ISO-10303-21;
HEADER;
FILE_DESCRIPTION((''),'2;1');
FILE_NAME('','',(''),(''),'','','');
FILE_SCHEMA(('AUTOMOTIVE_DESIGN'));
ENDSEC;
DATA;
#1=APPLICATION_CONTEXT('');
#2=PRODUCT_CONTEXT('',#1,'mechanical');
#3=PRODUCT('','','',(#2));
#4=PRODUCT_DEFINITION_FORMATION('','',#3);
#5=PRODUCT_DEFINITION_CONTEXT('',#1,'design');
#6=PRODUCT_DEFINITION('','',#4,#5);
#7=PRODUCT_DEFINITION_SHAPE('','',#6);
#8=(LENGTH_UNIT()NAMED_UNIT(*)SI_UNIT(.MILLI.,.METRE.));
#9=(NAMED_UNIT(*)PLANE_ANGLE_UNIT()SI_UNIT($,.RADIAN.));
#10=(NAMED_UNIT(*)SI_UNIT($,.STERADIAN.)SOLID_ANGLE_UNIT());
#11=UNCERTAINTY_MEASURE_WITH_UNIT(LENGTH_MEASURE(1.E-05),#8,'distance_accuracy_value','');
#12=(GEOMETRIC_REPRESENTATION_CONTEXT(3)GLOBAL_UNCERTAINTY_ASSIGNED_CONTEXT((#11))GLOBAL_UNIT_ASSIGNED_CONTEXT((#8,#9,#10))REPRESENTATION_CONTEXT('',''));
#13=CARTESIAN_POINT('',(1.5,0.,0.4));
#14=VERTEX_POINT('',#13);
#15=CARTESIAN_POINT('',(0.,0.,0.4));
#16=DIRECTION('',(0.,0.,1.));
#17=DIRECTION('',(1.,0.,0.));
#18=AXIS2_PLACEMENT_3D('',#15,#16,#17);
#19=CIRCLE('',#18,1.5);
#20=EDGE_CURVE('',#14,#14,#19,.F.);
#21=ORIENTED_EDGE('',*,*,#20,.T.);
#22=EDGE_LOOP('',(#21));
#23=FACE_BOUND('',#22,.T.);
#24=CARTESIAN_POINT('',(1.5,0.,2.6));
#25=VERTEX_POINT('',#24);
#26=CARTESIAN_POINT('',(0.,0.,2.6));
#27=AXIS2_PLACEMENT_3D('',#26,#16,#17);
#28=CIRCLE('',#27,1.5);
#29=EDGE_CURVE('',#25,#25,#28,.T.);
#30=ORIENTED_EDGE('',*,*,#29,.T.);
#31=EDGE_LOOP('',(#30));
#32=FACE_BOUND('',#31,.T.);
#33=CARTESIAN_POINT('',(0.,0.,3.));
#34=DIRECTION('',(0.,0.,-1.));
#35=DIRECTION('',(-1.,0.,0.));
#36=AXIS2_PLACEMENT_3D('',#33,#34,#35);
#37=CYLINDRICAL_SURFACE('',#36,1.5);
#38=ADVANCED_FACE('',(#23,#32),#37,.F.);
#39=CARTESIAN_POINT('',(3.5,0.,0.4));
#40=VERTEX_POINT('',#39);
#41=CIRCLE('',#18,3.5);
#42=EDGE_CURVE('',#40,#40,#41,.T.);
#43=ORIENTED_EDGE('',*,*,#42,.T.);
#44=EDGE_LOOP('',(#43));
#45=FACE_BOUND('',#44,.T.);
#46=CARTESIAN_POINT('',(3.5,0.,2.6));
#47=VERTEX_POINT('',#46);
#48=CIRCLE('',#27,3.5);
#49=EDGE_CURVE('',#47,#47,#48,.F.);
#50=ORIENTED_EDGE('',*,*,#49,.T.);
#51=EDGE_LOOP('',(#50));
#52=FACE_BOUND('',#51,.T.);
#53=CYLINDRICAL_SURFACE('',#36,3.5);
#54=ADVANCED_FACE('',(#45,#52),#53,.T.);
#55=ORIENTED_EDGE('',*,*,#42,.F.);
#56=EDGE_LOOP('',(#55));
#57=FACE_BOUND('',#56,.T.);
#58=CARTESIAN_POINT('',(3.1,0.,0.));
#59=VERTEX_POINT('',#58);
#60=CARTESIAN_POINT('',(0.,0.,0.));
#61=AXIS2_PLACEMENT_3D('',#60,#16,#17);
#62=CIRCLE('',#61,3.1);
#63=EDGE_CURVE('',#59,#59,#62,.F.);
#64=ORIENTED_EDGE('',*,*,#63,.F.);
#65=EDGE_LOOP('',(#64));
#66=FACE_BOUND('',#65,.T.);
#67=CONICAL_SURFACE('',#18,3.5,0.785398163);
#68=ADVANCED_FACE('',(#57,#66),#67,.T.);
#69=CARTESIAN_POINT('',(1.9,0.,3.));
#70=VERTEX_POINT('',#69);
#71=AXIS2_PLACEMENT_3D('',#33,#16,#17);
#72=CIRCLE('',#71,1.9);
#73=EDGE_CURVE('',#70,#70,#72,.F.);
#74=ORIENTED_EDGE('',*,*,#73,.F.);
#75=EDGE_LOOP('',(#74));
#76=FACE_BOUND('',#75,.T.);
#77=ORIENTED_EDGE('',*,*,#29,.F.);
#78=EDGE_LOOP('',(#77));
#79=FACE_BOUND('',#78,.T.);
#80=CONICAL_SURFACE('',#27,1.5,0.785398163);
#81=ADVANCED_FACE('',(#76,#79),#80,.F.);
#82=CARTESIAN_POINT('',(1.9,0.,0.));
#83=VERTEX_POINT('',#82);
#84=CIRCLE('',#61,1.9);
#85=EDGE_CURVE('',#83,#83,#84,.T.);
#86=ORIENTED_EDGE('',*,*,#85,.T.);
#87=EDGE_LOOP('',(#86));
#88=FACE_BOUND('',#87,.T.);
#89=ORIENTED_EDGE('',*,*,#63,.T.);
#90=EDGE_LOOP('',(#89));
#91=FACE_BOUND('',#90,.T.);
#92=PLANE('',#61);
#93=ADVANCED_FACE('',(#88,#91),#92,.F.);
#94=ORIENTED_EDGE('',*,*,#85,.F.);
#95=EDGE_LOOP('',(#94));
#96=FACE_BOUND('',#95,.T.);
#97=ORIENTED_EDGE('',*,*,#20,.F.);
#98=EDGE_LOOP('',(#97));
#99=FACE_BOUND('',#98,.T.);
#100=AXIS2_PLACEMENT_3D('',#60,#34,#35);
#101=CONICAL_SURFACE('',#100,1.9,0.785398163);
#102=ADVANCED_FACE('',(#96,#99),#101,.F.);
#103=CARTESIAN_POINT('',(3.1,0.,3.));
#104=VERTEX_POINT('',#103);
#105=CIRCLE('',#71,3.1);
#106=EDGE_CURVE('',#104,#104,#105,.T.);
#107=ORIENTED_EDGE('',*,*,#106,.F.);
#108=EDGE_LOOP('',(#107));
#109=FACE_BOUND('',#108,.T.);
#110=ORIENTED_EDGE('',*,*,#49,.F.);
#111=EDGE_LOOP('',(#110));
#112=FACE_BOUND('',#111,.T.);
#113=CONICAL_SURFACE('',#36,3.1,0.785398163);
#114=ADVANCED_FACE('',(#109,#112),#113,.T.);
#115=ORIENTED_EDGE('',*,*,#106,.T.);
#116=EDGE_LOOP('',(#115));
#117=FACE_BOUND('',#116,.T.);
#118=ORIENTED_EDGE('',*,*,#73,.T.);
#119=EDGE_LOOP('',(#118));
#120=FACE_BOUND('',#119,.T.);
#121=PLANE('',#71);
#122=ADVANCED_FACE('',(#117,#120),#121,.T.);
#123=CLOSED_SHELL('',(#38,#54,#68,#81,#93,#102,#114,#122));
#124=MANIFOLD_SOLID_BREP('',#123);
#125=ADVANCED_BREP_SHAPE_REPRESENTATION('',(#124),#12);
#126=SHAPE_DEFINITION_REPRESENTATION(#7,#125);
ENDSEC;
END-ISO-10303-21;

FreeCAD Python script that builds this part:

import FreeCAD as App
import Part
import Sketcher
from FreeCAD import Vector
Q = App.Units.Quantity


def edges_at(feature, points):
    """Names of the edges that pass closest to the given points."""
    edges = feature.Shape.Edges
    near = lambda p: min(range(len(edges)), key=lambda i: edges[i].distToShape(Part.Vertex(*p))[0])
    return sorted({f"Edge{near(p) + 1}" for p in points})

doc = App.newDocument("Part")
params = doc.addObject("Spreadsheet::Sheet", "Params")
for row, (alias, value) in enumerate([
    ("sketch1_diameter", "7 mm"),
    ("sketch1_diameter2", "3 mm"),
    ("pad1_length", "3 mm"),
    ("chamfer_size", "0.4 mm"),
], start=1):
    params.set(f"A{row}", alias)
    params.set(f"B{row}", "=" + value)
    params.setAlias(f"B{row}", alias)

body = doc.addObject("PartDesign::Body", "Body")

sketch1 = body.newObject("Sketcher::SketchObject", "Sketch")
sketch1.AttachmentSupport = (doc.getObject("XY_Plane"), [""])
sketch1.MapMode = "FlatFace"
sketch1.addGeometry([
    Part.Circle(Vector(0, 0, 0), Vector(0, 0, 1), 3.5),
    Part.Circle(Vector(0, 0, 0), Vector(0, 0, 1), 1.5),
], False)
sketch1.addConstraint([
    Sketcher.Constraint("Coincident", 0, 3, -1, 1),
    Sketcher.Constraint("Coincident", 1, 3, -1, 1),
    Sketcher.Constraint("Diameter", 0, Q("7 mm")),
    Sketcher.Constraint("Diameter", 1, Q("3 mm")),
])
sketch1.setExpression("Constraints[2]", "Params.sketch1_diameter")
sketch1.setExpression("Constraints[3]", "Params.sketch1_diameter2")
pad1 = body.newObject("PartDesign::Pad", "Pad")
pad1.Profile = sketch1
pad1.setExpression("Length", "Params.pad1_length")
doc.recompute()

chamfer = body.newObject("PartDesign::Chamfer", "Chamfer")
chamfer.Base = (pad1, edges_at(pad1, [
    (-3.5, 0, 0),
    (-3.5, 0, 3),
    (-1.5, 0, 0),
    (-1.5, 0, 3),
]))
chamfer.setExpression("Size", "Params.chamfer_size")

doc.recompute()
